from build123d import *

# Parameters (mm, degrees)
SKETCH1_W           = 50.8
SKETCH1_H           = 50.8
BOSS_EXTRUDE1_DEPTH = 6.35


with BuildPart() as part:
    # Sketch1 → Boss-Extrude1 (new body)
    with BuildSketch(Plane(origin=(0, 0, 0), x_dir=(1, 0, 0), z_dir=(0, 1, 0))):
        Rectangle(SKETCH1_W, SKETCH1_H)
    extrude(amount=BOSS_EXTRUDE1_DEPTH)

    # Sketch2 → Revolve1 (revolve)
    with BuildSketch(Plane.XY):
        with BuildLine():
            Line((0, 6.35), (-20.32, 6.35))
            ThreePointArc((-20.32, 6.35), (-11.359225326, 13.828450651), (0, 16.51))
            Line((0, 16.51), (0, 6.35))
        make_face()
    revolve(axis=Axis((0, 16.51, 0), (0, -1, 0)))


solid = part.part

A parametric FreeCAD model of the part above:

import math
import FreeCAD as App
import Part
import Sketcher

V = App.Vector
Q = App.Units.Quantity

doc = App.newDocument("Part")
body = doc.addObject("PartDesign::Body", "Body")

sketch1 = body.newObject("Sketcher::SketchObject", "Sketch")
sketch1.AttachmentSupport = (doc.getObject("XZ_Plane"), [""])
sketch1.MapMode = "FlatFace"
sketch1.addGeometry([
    Part.LineSegment(V(-25, -25, 0), V(-25, 25, 0)),
    Part.LineSegment(V(-25, 25, 0), V(25, 25, 0)),
    Part.LineSegment(V(25, 25, 0), V(25, -25, 0)),
    Part.LineSegment(V(25, -25, 0), V(-25, -25, 0)),
], False)
sketch1.addConstraint([
    Sketcher.Constraint("Coincident", 0, 2, 1, 1),
    Sketcher.Constraint("Coincident", 1, 2, 2, 1),
    Sketcher.Constraint("Coincident", 2, 2, 3, 1),
    Sketcher.Constraint("Coincident", 3, 2, 0, 1),
    Sketcher.Constraint("Vertical", 0),
    Sketcher.Constraint("Horizontal", 1),
    Sketcher.Constraint("Vertical", 2),
    Sketcher.Constraint("Horizontal", 3),
    Sketcher.Constraint("Symmetric", 0, 2, 2, 2, -1, 1),
    Sketcher.Constraint("Equal", 3, 0),
    Sketcher.Constraint("DistanceX", 1, 1, 1, 2, Q("2 in")),
])
pad1 = body.newObject("PartDesign::Pad", "Pad")
pad1.Profile = sketch1
pad1.Length = Q("0.25 in")
pad1.Reversed = True

sketch2 = body.newObject("Sketcher::SketchObject", "Sketch001")
sketch2.AttachmentSupport = (doc.getObject("XY_Plane"), [""])
sketch2.MapMode = "FlatFace"
sketch2.addGeometry([
    Part.LineSegment(V(-20, 6, 0), V(0, 6, 0)),
    Part.LineSegment(V(0, 6, 0), V(0, 17, 0)),
    Part.ArcOfCircle(Part.Circle(V(0, -9, 0), V(0, 0, 1), 25), math.radians(90), math.radians(143)),
], False)
sketch2.addConstraint([
    Sketcher.Constraint("Coincident", 0, 2, 1, 1),
    Sketcher.Constraint("Coincident", 1, 2, 2, 1),
    Sketcher.Constraint("Coincident", 2, 2, 0, 1),
    Sketcher.Constraint("Horizontal", 0),
    Sketcher.Constraint("Vertical", 1),
    Sketcher.Constraint("PointOnObject", 2, 3, -2),
    Sketcher.Constraint("PointOnObject", 0, 2, -2),
    Sketcher.Constraint("Radius", 2, Q("1 in")),
    Sketcher.Constraint("DistanceX", 0, 1, 0, 2, Q("0.8 in")),
    Sketcher.Constraint("DistanceY", 2, 3, -1, 1, Q("0.35 in")),
])
revolution = body.newObject("PartDesign::Revolution", "Revolution")
revolution.Profile = sketch2
revolution.ReferenceAxis = (sketch2, ["V_Axis"])
revolution.Angle = 360

doc.recompute()
